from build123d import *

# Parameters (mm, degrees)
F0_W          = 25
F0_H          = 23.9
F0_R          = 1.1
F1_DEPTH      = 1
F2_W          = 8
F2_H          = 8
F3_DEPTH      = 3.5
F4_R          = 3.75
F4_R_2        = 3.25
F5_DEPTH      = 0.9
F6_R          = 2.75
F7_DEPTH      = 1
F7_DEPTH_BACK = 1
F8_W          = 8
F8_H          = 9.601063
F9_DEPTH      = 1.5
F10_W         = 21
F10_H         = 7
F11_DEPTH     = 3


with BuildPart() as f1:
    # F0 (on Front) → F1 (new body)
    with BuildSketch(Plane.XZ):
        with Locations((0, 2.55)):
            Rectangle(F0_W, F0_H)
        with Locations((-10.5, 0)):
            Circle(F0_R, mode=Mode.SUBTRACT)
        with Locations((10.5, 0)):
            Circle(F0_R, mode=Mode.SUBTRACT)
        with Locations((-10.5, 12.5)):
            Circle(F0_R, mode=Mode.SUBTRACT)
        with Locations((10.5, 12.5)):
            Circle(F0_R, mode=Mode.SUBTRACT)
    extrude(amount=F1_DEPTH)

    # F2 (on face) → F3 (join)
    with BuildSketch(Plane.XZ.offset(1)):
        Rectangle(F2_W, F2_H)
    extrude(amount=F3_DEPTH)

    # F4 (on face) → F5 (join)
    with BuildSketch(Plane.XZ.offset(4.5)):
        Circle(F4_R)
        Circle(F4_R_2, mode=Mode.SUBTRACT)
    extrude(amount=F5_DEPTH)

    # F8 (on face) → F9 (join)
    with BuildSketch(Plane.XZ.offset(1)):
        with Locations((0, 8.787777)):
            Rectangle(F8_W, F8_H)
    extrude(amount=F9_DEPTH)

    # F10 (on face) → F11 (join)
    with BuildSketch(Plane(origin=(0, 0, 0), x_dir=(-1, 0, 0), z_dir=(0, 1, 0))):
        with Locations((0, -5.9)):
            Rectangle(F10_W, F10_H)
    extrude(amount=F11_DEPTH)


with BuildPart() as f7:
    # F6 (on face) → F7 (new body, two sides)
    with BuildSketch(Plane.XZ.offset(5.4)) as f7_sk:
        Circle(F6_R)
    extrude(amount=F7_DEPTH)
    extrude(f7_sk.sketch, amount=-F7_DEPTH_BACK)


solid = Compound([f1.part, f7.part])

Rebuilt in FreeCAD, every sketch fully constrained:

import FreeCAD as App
import Part
import Sketcher

V = App.Vector

doc = App.newDocument("Part")
body = doc.addObject("PartDesign::Body", "Body")

sketch1 = body.newObject("Sketcher::SketchObject", "Sketch")
sketch1.AttachmentSupport = (doc.getObject("XZ_Plane"), [""])
sketch1.MapMode = "FlatFace"
sketch1.addGeometry(Part.LineSegment(V(-12.5, 14.5, 0), V(-12.5, -9.4, 0)), False)
sketch1.addGeometry(Part.LineSegment(V(-12.5, -9.4, 0), V(12.5, -9.4, 0)), False)
sketch1.addGeometry(Part.LineSegment(V(12.5, -9.4, 0), V(12.5, 14.5, 0)), False)
sketch1.addGeometry(Part.LineSegment(V(12.5, 14.5, 0), V(-12.5, 14.5, 0)), False)
sketch1.addGeometry(Part.Circle(V(-10.5, 0, 0), V(0, 0, 1), 1.1), False)
sketch1.addGeometry(Part.Circle(V(10.5, 0, 0), V(0, 0, 1), 1.1), False)
sketch1.addGeometry(Part.Circle(V(-10.5, 12.5, 0), V(0, 0, 1), 1.1), False)
sketch1.addGeometry(Part.Circle(V(10.5, 12.5, 0), V(0, 0, 1), 1.1), False)
sketch1.addConstraint(Sketcher.Constraint("Coincident", 0, 2, 1, 1))
sketch1.addConstraint(Sketcher.Constraint("Coincident", 1, 2, 2, 1))
sketch1.addConstraint(Sketcher.Constraint("Coincident", 2, 2, 3, 1))
sketch1.addConstraint(Sketcher.Constraint("Coincident", 3, 2, 0, 1))
sketch1.addConstraint(Sketcher.Constraint("Vertical", 0))
sketch1.addConstraint(Sketcher.Constraint("Horizontal", 1))
sketch1.addConstraint(Sketcher.Constraint("Vertical", 2))
sketch1.addConstraint(Sketcher.Constraint("Horizontal", 3))
sketch1.addConstraint(Sketcher.Constraint("Equal", 4, 5))
sketch1.addConstraint(Sketcher.Constraint("Equal", 5, 6))
sketch1.addConstraint(Sketcher.Constraint("Equal", 6, 7))
sketch1.addConstraint(Sketcher.Constraint("Symmetric", 4, 3, 5, 3, -1, 1))
sketch1.addConstraint(Sketcher.Constraint("Symmetric", 6, 3, 7, 3, -2))
sketch1.addConstraint(Sketcher.Constraint("PointOnObject", 4, 3, -1))
sketch1.addConstraint(Sketcher.Constraint("Vertical", 4, 3, 6, 3))
sketch1.addConstraint(Sketcher.Constraint("Diameter", 4, 2.2))
sketch1.addConstraint(Sketcher.Constraint("DistanceX", 1, 1, 1, 2, 25.0))
sketch1.addConstraint(Sketcher.Constraint("DistanceY", 0, 2, 0, 1, 23.9))
sketch1.addConstraint(Sketcher.Constraint("DistanceX", 4, 3, 5, 3, 21.0))
sketch1.addConstraint(Sketcher.Constraint("DistanceX", 0, 2, 4, 3, 2.0))
sketch1.addConstraint(Sketcher.Constraint("DistanceY", 7, 3, 2, 2, 2.0))
sketch1.addConstraint(Sketcher.Constraint("DistanceY", -1, 1, 6, 3, 12.5))
pad1 = body.newObject("PartDesign::Pad", "Pad")
pad1.Profile = sketch1
pad1.Length = 1

sketch2 = body.newObject("Sketcher::SketchObject", "Sketch001")
sketch2.AttachmentSupport = (doc.getObject("XZ_Plane"), [""])
sketch2.MapMode = "FlatFace"
sketch2.AttachmentOffset = App.Placement(V(0, 0, 1), App.Rotation())
sketch2.addGeometry(Part.LineSegment(V(-4, 4, 0), V(-4, -4, 0)), False)
sketch2.addGeometry(Part.LineSegment(V(-4, -4, 0), V(4, -4, 0)), False)
sketch2.addGeometry(Part.LineSegment(V(4, -4, 0), V(4, 4, 0)), False)
sketch2.addGeometry(Part.LineSegment(V(4, 4, 0), V(-4, 4, 0)), False)
sketch2.addConstraint(Sketcher.Constraint("Coincident", 0, 2, 1, 1))
sketch2.addConstraint(Sketcher.Constraint("Coincident", 1, 2, 2, 1))
sketch2.addConstraint(Sketcher.Constraint("Coincident", 2, 2, 3, 1))
sketch2.addConstraint(Sketcher.Constraint("Coincident", 3, 2, 0, 1))
sketch2.addConstraint(Sketcher.Constraint("Vertical", 0))
sketch2.addConstraint(Sketcher.Constraint("Horizontal", 1))
sketch2.addConstraint(Sketcher.Constraint("Vertical", 2))
sketch2.addConstraint(Sketcher.Constraint("Horizontal", 3))
sketch2.addConstraint(Sketcher.Constraint("Symmetric", 0, 2, 2, 2, -1, 1))
sketch2.addConstraint(Sketcher.Constraint("Equal", 3, 0))
sketch2.addConstraint(Sketcher.Constraint("DistanceX", 1, 1, 1, 2, 8.0))
pad2 = body.newObject("PartDesign::Pad", "Pad001")
pad2.Profile = sketch2
pad2.Length = 3.5

sketch3 = body.newObject("Sketcher::SketchObject", "Sketch002")
sketch3.AttachmentSupport = (doc.getObject("XZ_Plane"), [""])
sketch3.MapMode = "FlatFace"
sketch3.AttachmentOffset = App.Placement(V(0, 0, 4.5), App.Rotation())
sketch3.addGeometry(Part.Circle(V(0, 0, 0), V(0, 0, 1), 3.75), False)
sketch3.addGeometry(Part.Circle(V(0, 0, 0), V(0, 0, 1), 3.25), False)
sketch3.addConstraint(Sketcher.Constraint("Coincident", 0, 3, -1, 1))
sketch3.addConstraint(Sketcher.Constraint("Coincident", 1, 3, -1, 1))
sketch3.addConstraint(Sketcher.Constraint("Diameter", 0, 7.5))
sketch3.addConstraint(Sketcher.Constraint("Diameter", 1, 6.5))
pad3 = body.newObject("PartDesign::Pad", "Pad002")
pad3.Profile = sketch3
pad3.Length = 0.9

sketch4 = body.newObject("Sketcher::SketchObject", "Sketch003")
sketch4.AttachmentSupport = (doc.getObject("XZ_Plane"), [""])
sketch4.MapMode = "FlatFace"
sketch4.AttachmentOffset = App.Placement(V(0, 0, 1), App.Rotation())
sketch4.addGeometry(Part.LineSegment(V(-4, 13.588309, 0), V(-4, 3.987246, 0)), False)
sketch4.addGeometry(Part.LineSegment(V(-4, 3.987246, 0), V(4, 3.987246, 0)), False)
sketch4.addGeometry(Part.LineSegment(V(4, 3.987246, 0), V(4, 13.588309, 0)), False)
sketch4.addGeometry(Part.LineSegment(V(4, 13.588309, 0), V(-4, 13.588309, 0)), False)
sketch4.addConstraint(Sketcher.Constraint("Coincident", 0, 2, 1, 1))
sketch4.addConstraint(Sketcher.Constraint("Coincident", 1, 2, 2, 1))
sketch4.addConstraint(Sketcher.Constraint("Coincident", 2, 2, 3, 1))
sketch4.addConstraint(Sketcher.Constraint("Coincident", 3, 2, 0, 1))
sketch4.addConstraint(Sketcher.Constraint("Vertical", 0))
sketch4.addConstraint(Sketcher.Constraint("Horizontal", 1))
sketch4.addConstraint(Sketcher.Constraint("Vertical", 2))
sketch4.addConstraint(Sketcher.Constraint("Horizontal", 3))
sketch4.addConstraint(Sketcher.Constraint("DistanceX", 1, 1, 1, 2, 8.0))
sketch4.addConstraint(Sketcher.Constraint("DistanceX", 0, 2, -1, 1, 4.0))
sketch4.addConstraint(Sketcher.Constraint("DistanceY", 0, 2, 0, 1, 9.601063))
sketch4.addConstraint(Sketcher.Constraint("DistanceY", -1, 1, 2, 2, 13.588309))
pad4 = body.newObject("PartDesign::Pad", "Pad003")
pad4.Profile = sketch4
pad4.Length = 1.5

sketch5 = body.newObject("Sketcher::SketchObject", "Sketch004")
sketch5.AttachmentSupport = (doc.getObject("XZ_Plane"), [""])
sketch5.MapMode = "FlatFace"
sketch5.addGeometry(Part.LineSegment(V(10.5, -2.4, 0), V(10.5, -9.4, 0)), False)
sketch5.addGeometry(Part.LineSegment(V(10.5, -9.4, 0), V(-10.5, -9.4, 0)), False)
sketch5.addGeometry(Part.LineSegment(V(-10.5, -9.4, 0), V(-10.5, -2.4, 0)), False)
sketch5.addGeometry(Part.LineSegment(V(-10.5, -2.4, 0), V(10.5, -2.4, 0)), False)
sketch5.addConstraint(Sketcher.Constraint("Coincident", 0, 2, 1, 1))
sketch5.addConstraint(Sketcher.Constraint("Coincident", 1, 2, 2, 1))
sketch5.addConstraint(Sketcher.Constraint("Coincident", 2, 2, 3, 1))
sketch5.addConstraint(Sketcher.Constraint("Coincident", 3, 2, 0, 1))
sketch5.addConstraint(Sketcher.Constraint("Vertical", 0))
sketch5.addConstraint(Sketcher.Constraint("Horizontal", 1))
sketch5.addConstraint(Sketcher.Constraint("Vertical", 2))
sketch5.addConstraint(Sketcher.Constraint("Horizontal", 3))
sketch5.addConstraint(Sketcher.Constraint("DistanceX", 1, 2, 1, 1, 21.0))
sketch5.addConstraint(Sketcher.Constraint("DistanceY", 0, 2, 0, 1, 7.0))
sketch5.addConstraint(Sketcher.Constraint("DistanceX", -1, 1, 0, 2, 10.5))
sketch5.addConstraint(Sketcher.Constraint("DistanceY", 0, 2, -1, 1, 9.4))
pad5 = body.newObject("PartDesign::Pad", "Pad004")
pad5.Profile = sketch5
pad5.Length = 3
pad5.Reversed = True
body2 = doc.addObject("PartDesign::Body", "Body001")

sketch6 = body2.newObject("Sketcher::SketchObject", "Sketch005")
sketch6.AttachmentSupport = (doc.getObject("XZ_Plane001"), [""])
sketch6.MapMode = "FlatFace"
sketch6.AttachmentOffset = App.Placement(V(0, 0, 5.4), App.Rotation())
sketch6.addGeometry(Part.Circle(V(0, 0, 0), V(0, 0, 1), 2.75), False)
sketch6.addConstraint(Sketcher.Constraint("Coincident", 0, 3, -1, 1))
sketch6.addConstraint(Sketcher.Constraint("Diameter", 0, 5.5))
pad6 = body2.newObject("PartDesign::Pad", "Pad005")
pad6.Profile = sketch6
pad6.Type = "TwoLengths"
pad6.Length = 1
pad6.Length2 = 1

doc.recompute()
